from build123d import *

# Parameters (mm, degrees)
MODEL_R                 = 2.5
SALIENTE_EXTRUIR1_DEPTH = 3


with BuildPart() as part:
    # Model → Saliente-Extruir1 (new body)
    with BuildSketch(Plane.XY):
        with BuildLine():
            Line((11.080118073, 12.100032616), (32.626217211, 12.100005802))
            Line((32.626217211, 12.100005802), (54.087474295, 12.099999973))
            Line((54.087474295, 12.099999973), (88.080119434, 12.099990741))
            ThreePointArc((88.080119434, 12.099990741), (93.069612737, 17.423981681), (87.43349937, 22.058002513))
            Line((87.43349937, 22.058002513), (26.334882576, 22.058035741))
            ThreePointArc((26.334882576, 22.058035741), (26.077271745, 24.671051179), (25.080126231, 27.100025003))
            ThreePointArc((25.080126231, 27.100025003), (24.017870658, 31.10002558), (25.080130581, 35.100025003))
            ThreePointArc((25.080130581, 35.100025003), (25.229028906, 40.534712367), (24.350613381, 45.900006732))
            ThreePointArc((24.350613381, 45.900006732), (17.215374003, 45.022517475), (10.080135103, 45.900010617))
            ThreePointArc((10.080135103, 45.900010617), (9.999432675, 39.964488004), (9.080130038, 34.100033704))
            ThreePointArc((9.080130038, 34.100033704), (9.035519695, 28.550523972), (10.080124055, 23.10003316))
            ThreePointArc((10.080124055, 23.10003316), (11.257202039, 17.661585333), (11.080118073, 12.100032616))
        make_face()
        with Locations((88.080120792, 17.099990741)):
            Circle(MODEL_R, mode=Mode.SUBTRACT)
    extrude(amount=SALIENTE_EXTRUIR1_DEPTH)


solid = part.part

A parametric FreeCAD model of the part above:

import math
import FreeCAD as App
import Part
import Sketcher

V = App.Vector

doc = App.newDocument("Part")
body = doc.addObject("PartDesign::Body", "Body")

sketch1 = body.newObject("Sketcher::SketchObject", "Sketch")
sketch1.AttachmentSupport = (doc.getObject("XY_Plane"), [""])
sketch1.MapMode = "FlatFace"
sketch1.addGeometry([
    Part.LineSegment(V(11.080118, 12.100033, 0), V(32.626217, 12.100006, 0)),
    Part.LineSegment(V(32.626217, 12.100006, 0), V(54.087474, 12.1, 0)),
    Part.LineSegment(V(54.087474, 12.1, 0), V(88.080119, 12.099991, 0)),
    Part.ArcOfCircle(Part.Circle(V(88.080121, 17.099991, 0), V(0, 0, 1), 5), math.radians(-90.000016), math.radians(97.430547)),
    Part.LineSegment(V(87.433499, 22.058003, 0), V(26.334883, 22.058036, 0)),
    Part.ArcOfCircle(Part.Circle(V(17.298587, 22.486376, 0), V(0, 0, 1), 9.046442), math.radians(-2.713912), math.radians(30.663564)),
    Part.ArcOfCircle(Part.Circle(V(32.080128, 31.100021, 0), V(0, 0, 1), 8.062258), math.radians(150.255088), math.radians(209.74485)),
    Part.ArcOfCircle(Part.Circle(V(-3.412408, 38.60004, 0), V(0, 0, 1), 28.706704), math.radians(-7.003114), math.radians(14.731804)),
    Part.ArcOfCircle(Part.Circle(V(17.215382, 74.471034, 0), V(0, 0, 1), 29.448517), math.radians(-104.02207), math.radians(-75.977961)),
    Part.ArcOfCircle(Part.Circle(V(-31.719704, 43.500033, 0), V(0, 0, 1), 41.86868), math.radians(-12.974153), math.radians(3.286084)),
    Part.ArcOfCircle(Part.Circle(V(37.080128, 31.100018, 0), V(0, 0, 1), 28.160256), math.radians(173.884465), math.radians(196.50433)),
    Part.ArcOfCircle(Part.Circle(V(-11.41988, 15.600045, 0), V(0, 0, 1), 22.770595), math.radians(-8.841846), math.radians(19.230641)),
    Part.Circle(V(88.080121, 17.099991, 0), V(0, 0, 1), 2.5),
], False)
sketch1.addConstraint([
    Sketcher.Constraint("Coincident", 0, 2, 1, 1),
    Sketcher.Constraint("Coincident", 1, 2, 2, 1),
    Sketcher.Constraint("Coincident", 2, 2, 3, 1),
    Sketcher.Constraint("Coincident", 3, 2, 4, 1),
    Sketcher.Constraint("Coincident", 4, 2, 5, 1),
    Sketcher.Constraint("Coincident", 5, 2, 6, 2),
    Sketcher.Constraint("Coincident", 6, 1, 7, 1),
    Sketcher.Constraint("Coincident", 7, 2, 8, 2),
    Sketcher.Constraint("Coincident", 8, 1, 9, 2),
    Sketcher.Constraint("Coincident", 9, 1, 10, 1),
    Sketcher.Constraint("Coincident", 10, 2, 11, 2),
    Sketcher.Constraint("Coincident", 11, 1, 0, 1),
    Sketcher.Constraint("Coincident", 12, 3, 3, 3),
    Sketcher.Constraint("Diameter", 12, 5.0),
    Sketcher.Constraint("Radius", 3, 5.0),
    Sketcher.Constraint("DistanceX", 6, 3, 10, 3, 5.0),
    Sketcher.Constraint("DistanceY", 5, 2, 6, 1, 8.0),
    Sketcher.Constraint("DistanceX", 9, 1, 6, 1, 16.000001),
    Sketcher.Constraint("DistanceY", 10, 2, 9, 1, 11.000001),
    Sketcher.Constraint("DistanceY", 11, 1, 10, 2, 11.000001),
    Sketcher.Constraint("DistanceY", -1, 1, 1, 2, 12.1),
    Sketcher.Constraint("Radius", 5, 9.046442),
    Sketcher.Constraint("Radius", 9, 41.86868),
    Sketcher.Constraint("Radius", 6, 8.062258),
    Sketcher.Constraint("Radius", 7, 28.706704),
    Sketcher.Constraint("Radius", 8, 29.448517),
    Sketcher.Constraint("Radius", 10, 28.160256),
    Sketcher.Constraint("Radius", 11, 22.770595),
    Sketcher.Constraint("DistanceY", 9, 3, 8, 3, 30.971001),
    Sketcher.Constraint("Distance", 0, 21.546099),
    Sketcher.Constraint("DistanceX", -1, 1, 3, 2, 87.433499),
    Sketcher.Constraint("DistanceX", -1, 1, 3, 3, 88.080121),
    Sketcher.Constraint("DistanceY", -1, 1, 3, 3, 17.099991),
    Sketcher.Constraint("DistanceX", -1, 1, 6, 3, 32.080128),
    Sketcher.Constraint("DistanceY", -1, 1, 6, 3, 31.100021),
    Sketcher.Constraint("DistanceY", -1, 1, 7, 3, 38.60004),
    Sketcher.Constraint("DistanceY", -1, 1, 10, 3, 31.100018),
    Sketcher.Constraint("DistanceX", 11, 3, -1, 1, 11.41988),
    Sketcher.Constraint("DistanceX", -1, 1, 2, 2, 88.080119),
    Sketcher.Constraint("DistanceX", -1, 1, 6, 1, 25.080131),
    Sketcher.Constraint("DistanceY", -1, 1, 8, 1, 45.900011),
    Sketcher.Constraint("DistanceX", 5, 3, 6, 3, 14.781541),
    Sketcher.Constraint("DistanceX", 7, 3, 8, 3, 20.62779),
    Sketcher.Constraint("DistanceY", 0, 2, 5, 3, 10.38637),
    Sketcher.Constraint("DistanceY", 4, 2, 5, 3, 0.42834),
    Sketcher.Constraint("DistanceX", 4, 2, 1, 2, 27.752592),
])
pad1 = body.newObject("PartDesign::Pad", "Pad")
pad1.Profile = sketch1
pad1.Length = 3

doc.recompute()
